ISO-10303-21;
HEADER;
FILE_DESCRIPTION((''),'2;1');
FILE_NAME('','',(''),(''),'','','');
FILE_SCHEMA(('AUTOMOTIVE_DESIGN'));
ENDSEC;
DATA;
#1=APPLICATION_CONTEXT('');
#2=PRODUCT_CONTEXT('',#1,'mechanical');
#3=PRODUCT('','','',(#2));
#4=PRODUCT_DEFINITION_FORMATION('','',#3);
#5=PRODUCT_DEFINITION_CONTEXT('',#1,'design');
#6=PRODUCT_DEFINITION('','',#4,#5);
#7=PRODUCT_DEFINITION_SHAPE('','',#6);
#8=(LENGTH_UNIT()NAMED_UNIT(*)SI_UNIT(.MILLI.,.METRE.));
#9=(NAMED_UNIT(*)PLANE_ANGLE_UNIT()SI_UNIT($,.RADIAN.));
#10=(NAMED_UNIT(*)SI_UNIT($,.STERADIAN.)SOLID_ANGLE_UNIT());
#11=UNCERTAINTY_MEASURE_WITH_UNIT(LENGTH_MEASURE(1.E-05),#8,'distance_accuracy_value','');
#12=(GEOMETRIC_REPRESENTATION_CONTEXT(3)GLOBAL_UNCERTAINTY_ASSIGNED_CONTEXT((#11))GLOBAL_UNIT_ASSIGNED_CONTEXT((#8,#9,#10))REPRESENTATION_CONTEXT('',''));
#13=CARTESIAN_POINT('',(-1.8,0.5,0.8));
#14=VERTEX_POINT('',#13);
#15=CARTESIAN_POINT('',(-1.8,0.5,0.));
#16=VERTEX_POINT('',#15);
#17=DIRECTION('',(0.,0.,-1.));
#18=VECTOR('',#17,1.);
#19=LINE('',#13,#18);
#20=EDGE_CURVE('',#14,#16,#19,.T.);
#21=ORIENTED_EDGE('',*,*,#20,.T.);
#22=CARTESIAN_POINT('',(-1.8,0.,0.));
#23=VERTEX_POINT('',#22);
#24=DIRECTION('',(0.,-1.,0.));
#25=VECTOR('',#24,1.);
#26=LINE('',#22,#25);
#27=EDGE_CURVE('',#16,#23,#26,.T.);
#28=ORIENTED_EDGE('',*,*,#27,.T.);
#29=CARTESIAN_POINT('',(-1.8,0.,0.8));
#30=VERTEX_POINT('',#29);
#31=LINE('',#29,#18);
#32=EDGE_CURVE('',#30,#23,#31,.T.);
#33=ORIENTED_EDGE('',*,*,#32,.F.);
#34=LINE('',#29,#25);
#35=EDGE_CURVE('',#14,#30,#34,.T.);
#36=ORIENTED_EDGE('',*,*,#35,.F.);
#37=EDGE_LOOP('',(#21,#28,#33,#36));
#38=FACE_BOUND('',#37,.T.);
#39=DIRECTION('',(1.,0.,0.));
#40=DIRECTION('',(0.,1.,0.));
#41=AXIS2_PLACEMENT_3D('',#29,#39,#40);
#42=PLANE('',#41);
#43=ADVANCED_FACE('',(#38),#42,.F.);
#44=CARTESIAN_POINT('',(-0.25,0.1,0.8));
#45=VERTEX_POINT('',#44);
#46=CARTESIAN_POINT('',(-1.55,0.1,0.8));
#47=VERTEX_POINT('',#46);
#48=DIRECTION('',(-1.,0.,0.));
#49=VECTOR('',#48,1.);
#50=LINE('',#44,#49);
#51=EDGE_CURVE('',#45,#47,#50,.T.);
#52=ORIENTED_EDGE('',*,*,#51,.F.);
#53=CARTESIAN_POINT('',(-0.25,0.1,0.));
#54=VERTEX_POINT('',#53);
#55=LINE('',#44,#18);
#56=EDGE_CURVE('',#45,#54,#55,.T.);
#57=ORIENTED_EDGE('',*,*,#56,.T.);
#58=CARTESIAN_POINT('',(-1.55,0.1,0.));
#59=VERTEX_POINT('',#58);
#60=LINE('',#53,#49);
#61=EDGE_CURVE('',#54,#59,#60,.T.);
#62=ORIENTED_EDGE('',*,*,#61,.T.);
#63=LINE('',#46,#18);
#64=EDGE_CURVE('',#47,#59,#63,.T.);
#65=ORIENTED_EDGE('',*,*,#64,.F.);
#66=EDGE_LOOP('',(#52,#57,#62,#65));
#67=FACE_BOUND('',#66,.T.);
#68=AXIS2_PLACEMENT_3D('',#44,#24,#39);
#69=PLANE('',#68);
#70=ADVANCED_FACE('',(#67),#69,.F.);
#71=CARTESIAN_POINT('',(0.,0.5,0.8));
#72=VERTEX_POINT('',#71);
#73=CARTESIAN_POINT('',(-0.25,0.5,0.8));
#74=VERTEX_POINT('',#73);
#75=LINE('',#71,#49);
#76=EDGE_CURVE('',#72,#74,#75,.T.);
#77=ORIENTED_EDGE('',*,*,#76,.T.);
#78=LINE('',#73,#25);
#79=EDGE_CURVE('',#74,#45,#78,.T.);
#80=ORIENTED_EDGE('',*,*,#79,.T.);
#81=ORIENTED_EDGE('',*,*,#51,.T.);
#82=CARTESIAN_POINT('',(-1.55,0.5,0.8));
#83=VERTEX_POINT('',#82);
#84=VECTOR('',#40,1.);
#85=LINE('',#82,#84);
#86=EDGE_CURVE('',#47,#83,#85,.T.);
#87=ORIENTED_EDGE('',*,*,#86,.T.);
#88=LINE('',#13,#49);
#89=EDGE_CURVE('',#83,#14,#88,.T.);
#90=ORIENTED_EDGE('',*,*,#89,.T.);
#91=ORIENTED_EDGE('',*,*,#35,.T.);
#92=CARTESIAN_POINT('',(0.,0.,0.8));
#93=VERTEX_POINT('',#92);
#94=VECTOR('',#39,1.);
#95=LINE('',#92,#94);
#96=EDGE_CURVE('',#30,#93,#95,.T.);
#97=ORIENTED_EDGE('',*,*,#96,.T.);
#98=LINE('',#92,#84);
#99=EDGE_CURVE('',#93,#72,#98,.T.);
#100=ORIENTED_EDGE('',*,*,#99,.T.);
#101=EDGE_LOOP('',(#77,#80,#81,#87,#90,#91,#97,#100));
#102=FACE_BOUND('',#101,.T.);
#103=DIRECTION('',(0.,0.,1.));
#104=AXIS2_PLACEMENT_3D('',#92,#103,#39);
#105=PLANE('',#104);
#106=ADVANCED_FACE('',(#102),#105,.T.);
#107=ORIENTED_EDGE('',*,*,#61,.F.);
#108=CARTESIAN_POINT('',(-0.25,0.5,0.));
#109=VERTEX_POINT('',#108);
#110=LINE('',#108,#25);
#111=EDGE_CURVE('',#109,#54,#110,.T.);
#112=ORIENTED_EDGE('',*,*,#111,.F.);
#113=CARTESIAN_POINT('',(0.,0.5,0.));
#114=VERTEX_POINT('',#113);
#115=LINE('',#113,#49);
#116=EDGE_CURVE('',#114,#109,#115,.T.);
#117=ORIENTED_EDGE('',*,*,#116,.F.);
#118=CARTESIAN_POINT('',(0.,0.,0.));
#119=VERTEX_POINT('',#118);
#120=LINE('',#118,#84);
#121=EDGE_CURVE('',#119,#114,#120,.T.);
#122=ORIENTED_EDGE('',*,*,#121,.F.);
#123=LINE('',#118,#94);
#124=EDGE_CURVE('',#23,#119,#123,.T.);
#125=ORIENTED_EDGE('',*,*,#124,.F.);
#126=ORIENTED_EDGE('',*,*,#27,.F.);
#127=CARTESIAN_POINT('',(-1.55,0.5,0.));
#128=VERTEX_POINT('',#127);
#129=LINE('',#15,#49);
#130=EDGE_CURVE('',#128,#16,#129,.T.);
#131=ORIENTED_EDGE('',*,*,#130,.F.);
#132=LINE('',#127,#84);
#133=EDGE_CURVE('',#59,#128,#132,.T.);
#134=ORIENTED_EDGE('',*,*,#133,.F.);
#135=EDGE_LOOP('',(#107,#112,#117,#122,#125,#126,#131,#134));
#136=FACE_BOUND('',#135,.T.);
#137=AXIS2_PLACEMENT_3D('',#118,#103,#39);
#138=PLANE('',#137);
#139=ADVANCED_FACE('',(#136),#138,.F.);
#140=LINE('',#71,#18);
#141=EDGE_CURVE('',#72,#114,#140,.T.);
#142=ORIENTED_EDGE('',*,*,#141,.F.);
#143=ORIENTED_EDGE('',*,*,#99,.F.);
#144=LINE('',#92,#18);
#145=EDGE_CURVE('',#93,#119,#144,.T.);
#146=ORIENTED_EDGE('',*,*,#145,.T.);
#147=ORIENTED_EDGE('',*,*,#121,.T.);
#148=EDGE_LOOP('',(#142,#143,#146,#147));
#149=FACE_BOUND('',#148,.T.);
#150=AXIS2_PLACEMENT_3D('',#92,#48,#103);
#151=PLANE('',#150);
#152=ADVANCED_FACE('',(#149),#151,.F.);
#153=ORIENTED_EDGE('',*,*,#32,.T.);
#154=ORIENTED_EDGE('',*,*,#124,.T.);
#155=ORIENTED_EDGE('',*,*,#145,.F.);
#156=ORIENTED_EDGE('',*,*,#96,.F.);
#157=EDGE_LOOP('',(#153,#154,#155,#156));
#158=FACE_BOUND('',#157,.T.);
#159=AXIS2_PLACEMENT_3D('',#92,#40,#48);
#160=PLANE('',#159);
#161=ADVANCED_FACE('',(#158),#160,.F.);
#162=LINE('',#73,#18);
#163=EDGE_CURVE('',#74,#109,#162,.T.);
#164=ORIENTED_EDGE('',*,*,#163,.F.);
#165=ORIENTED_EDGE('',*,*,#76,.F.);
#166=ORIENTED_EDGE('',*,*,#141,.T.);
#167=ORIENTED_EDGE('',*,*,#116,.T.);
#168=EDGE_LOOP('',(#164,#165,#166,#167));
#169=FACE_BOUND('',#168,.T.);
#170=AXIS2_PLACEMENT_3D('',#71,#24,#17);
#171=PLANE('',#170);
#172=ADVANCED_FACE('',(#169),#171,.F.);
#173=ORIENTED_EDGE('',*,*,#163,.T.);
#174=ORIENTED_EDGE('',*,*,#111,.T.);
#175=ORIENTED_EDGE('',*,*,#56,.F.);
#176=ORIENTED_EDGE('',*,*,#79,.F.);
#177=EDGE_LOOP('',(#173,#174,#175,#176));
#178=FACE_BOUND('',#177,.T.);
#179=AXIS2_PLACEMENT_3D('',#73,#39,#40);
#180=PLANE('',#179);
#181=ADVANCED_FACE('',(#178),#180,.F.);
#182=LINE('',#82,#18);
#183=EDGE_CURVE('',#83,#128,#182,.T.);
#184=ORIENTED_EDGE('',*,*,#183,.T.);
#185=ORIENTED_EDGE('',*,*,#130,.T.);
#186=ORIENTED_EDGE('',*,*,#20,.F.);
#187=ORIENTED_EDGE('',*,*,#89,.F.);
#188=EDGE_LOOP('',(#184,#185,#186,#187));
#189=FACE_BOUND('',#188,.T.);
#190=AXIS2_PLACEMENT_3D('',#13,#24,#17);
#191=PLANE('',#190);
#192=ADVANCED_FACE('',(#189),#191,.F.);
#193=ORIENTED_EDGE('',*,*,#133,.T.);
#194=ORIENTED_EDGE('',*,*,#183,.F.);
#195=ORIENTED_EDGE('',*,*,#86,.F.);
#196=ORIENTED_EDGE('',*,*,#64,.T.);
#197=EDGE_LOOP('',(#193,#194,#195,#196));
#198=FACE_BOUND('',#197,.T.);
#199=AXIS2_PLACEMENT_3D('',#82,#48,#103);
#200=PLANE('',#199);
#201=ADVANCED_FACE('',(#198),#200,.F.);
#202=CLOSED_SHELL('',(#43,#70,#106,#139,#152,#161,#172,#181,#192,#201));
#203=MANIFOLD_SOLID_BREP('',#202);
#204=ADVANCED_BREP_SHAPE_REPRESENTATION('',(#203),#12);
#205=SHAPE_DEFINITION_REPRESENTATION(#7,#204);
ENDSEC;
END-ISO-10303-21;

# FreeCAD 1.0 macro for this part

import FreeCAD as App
import Part
import Sketcher

doc = App.newDocument("Part")
params = doc.addObject("Spreadsheet::Sheet", "Params")
for row, (alias, value) in enumerate([
    ("sketch1_width", "1.8 mm"),
    ("sketch1_width2", "1.3 mm"),
    ("sketch1_height", "0.5 mm"),
    ("sketch1_height2", "0.4 mm"),
    ("pad1_length", "0.8 mm"),
], start=1):
    params.set(f"A{row}", alias)
    params.set(f"B{row}", "=" + value)
    params.setAlias(f"B{row}", alias)

body = doc.addObject("PartDesign::Body", "Body")

# Sketch on XY plane
sketch1 = body.newObject("Sketcher::SketchObject", "Sketch")
sketch1.AttachmentSupport = (doc.getObject("XY_Plane"), [""])
sketch1.MapMode = "FlatFace"
sketch1.addGeometry(Part.LineSegment(App.Vector(-1.55, 0.5, 0), App.Vector(-1.8, 0.5, 0)), False)
sketch1.addGeometry(Part.LineSegment(App.Vector(-1.8, 0.5, 0), App.Vector(-1.8, 0, 0)), False)
sketch1.addGeometry(Part.LineSegment(App.Vector(-1.8, 0, 0), App.Vector(0, 0, 0)), False)
sketch1.addGeometry(Part.LineSegment(App.Vector(0, 0, 0), App.Vector(0, 0.5, 0)), False)
sketch1.addGeometry(Part.LineSegment(App.Vector(0, 0.5, 0), App.Vector(-0.25, 0.5, 0)), False)
sketch1.addGeometry(Part.LineSegment(App.Vector(-0.25, 0.5, 0), App.Vector(-0.25, 0.1, 0)), False)
sketch1.addGeometry(Part.LineSegment(App.Vector(-0.25, 0.1, 0), App.Vector(-1.55, 0.1, 0)), False)
sketch1.addGeometry(Part.LineSegment(App.Vector(-1.55, 0.1, 0), App.Vector(-1.55, 0.5, 0)), False)
sketch1.addConstraint(Sketcher.Constraint("Coincident", 0, 2, 1, 1))
sketch1.addConstraint(Sketcher.Constraint("Coincident", 1, 2, 2, 1))
sketch1.addConstraint(Sketcher.Constraint("Coincident", 2, 2, 3, 1))
sketch1.addConstraint(Sketcher.Constraint("Coincident", 3, 2, 4, 1))
sketch1.addConstraint(Sketcher.Constraint("Coincident", 4, 2, 5, 1))
sketch1.addConstraint(Sketcher.Constraint("Coincident", 5, 2, 6, 1))
sketch1.addConstraint(Sketcher.Constraint("Coincident", 6, 2, 7, 1))
sketch1.addConstraint(Sketcher.Constraint("Coincident", 7, 2, 0, 1))
sketch1.addConstraint(Sketcher.Constraint("Horizontal", 0))
sketch1.addConstraint(Sketcher.Constraint("Vertical", 1))
sketch1.addConstraint(Sketcher.Constraint("Horizontal", 2))
sketch1.addConstraint(Sketcher.Constraint("Vertical", 3))
sketch1.addConstraint(Sketcher.Constraint("Horizontal", 4))
sketch1.addConstraint(Sketcher.Constraint("Vertical", 5))
sketch1.addConstraint(Sketcher.Constraint("Horizontal", 6))
sketch1.addConstraint(Sketcher.Constraint("Vertical", 7))
sketch1.addConstraint(Sketcher.Constraint("Coincident", 2, 2, -1, 1))
sketch1.addConstraint(Sketcher.Constraint("Horizontal", 0, 2, 3, 2))
sketch1.addConstraint(Sketcher.Constraint("Equal", 0, 4))
sketch1.addConstraint(Sketcher.Constraint("DistanceX", 2, 1, 2, 2, 1.8))
sketch1.addConstraint(Sketcher.Constraint("DistanceX", 6, 2, 6, 1, 1.3))
sketch1.addConstraint(Sketcher.Constraint("DistanceY", 1, 2, 1, 1, 0.5))
sketch1.addConstraint(Sketcher.Constraint("DistanceY", 5, 2, 5, 1, 0.4))
sketch1.setExpression("Constraints[19]", "Params.sketch1_width")
sketch1.setExpression("Constraints[20]", "Params.sketch1_width2")
sketch1.setExpression("Constraints[21]", "Params.sketch1_height")
sketch1.setExpression("Constraints[22]", "Params.sketch1_height2")
pad1 = body.newObject("PartDesign::Pad", "Pad")
pad1.Profile = sketch1
pad1.setExpression("Length", "Params.pad1_length")

doc.recompute()
